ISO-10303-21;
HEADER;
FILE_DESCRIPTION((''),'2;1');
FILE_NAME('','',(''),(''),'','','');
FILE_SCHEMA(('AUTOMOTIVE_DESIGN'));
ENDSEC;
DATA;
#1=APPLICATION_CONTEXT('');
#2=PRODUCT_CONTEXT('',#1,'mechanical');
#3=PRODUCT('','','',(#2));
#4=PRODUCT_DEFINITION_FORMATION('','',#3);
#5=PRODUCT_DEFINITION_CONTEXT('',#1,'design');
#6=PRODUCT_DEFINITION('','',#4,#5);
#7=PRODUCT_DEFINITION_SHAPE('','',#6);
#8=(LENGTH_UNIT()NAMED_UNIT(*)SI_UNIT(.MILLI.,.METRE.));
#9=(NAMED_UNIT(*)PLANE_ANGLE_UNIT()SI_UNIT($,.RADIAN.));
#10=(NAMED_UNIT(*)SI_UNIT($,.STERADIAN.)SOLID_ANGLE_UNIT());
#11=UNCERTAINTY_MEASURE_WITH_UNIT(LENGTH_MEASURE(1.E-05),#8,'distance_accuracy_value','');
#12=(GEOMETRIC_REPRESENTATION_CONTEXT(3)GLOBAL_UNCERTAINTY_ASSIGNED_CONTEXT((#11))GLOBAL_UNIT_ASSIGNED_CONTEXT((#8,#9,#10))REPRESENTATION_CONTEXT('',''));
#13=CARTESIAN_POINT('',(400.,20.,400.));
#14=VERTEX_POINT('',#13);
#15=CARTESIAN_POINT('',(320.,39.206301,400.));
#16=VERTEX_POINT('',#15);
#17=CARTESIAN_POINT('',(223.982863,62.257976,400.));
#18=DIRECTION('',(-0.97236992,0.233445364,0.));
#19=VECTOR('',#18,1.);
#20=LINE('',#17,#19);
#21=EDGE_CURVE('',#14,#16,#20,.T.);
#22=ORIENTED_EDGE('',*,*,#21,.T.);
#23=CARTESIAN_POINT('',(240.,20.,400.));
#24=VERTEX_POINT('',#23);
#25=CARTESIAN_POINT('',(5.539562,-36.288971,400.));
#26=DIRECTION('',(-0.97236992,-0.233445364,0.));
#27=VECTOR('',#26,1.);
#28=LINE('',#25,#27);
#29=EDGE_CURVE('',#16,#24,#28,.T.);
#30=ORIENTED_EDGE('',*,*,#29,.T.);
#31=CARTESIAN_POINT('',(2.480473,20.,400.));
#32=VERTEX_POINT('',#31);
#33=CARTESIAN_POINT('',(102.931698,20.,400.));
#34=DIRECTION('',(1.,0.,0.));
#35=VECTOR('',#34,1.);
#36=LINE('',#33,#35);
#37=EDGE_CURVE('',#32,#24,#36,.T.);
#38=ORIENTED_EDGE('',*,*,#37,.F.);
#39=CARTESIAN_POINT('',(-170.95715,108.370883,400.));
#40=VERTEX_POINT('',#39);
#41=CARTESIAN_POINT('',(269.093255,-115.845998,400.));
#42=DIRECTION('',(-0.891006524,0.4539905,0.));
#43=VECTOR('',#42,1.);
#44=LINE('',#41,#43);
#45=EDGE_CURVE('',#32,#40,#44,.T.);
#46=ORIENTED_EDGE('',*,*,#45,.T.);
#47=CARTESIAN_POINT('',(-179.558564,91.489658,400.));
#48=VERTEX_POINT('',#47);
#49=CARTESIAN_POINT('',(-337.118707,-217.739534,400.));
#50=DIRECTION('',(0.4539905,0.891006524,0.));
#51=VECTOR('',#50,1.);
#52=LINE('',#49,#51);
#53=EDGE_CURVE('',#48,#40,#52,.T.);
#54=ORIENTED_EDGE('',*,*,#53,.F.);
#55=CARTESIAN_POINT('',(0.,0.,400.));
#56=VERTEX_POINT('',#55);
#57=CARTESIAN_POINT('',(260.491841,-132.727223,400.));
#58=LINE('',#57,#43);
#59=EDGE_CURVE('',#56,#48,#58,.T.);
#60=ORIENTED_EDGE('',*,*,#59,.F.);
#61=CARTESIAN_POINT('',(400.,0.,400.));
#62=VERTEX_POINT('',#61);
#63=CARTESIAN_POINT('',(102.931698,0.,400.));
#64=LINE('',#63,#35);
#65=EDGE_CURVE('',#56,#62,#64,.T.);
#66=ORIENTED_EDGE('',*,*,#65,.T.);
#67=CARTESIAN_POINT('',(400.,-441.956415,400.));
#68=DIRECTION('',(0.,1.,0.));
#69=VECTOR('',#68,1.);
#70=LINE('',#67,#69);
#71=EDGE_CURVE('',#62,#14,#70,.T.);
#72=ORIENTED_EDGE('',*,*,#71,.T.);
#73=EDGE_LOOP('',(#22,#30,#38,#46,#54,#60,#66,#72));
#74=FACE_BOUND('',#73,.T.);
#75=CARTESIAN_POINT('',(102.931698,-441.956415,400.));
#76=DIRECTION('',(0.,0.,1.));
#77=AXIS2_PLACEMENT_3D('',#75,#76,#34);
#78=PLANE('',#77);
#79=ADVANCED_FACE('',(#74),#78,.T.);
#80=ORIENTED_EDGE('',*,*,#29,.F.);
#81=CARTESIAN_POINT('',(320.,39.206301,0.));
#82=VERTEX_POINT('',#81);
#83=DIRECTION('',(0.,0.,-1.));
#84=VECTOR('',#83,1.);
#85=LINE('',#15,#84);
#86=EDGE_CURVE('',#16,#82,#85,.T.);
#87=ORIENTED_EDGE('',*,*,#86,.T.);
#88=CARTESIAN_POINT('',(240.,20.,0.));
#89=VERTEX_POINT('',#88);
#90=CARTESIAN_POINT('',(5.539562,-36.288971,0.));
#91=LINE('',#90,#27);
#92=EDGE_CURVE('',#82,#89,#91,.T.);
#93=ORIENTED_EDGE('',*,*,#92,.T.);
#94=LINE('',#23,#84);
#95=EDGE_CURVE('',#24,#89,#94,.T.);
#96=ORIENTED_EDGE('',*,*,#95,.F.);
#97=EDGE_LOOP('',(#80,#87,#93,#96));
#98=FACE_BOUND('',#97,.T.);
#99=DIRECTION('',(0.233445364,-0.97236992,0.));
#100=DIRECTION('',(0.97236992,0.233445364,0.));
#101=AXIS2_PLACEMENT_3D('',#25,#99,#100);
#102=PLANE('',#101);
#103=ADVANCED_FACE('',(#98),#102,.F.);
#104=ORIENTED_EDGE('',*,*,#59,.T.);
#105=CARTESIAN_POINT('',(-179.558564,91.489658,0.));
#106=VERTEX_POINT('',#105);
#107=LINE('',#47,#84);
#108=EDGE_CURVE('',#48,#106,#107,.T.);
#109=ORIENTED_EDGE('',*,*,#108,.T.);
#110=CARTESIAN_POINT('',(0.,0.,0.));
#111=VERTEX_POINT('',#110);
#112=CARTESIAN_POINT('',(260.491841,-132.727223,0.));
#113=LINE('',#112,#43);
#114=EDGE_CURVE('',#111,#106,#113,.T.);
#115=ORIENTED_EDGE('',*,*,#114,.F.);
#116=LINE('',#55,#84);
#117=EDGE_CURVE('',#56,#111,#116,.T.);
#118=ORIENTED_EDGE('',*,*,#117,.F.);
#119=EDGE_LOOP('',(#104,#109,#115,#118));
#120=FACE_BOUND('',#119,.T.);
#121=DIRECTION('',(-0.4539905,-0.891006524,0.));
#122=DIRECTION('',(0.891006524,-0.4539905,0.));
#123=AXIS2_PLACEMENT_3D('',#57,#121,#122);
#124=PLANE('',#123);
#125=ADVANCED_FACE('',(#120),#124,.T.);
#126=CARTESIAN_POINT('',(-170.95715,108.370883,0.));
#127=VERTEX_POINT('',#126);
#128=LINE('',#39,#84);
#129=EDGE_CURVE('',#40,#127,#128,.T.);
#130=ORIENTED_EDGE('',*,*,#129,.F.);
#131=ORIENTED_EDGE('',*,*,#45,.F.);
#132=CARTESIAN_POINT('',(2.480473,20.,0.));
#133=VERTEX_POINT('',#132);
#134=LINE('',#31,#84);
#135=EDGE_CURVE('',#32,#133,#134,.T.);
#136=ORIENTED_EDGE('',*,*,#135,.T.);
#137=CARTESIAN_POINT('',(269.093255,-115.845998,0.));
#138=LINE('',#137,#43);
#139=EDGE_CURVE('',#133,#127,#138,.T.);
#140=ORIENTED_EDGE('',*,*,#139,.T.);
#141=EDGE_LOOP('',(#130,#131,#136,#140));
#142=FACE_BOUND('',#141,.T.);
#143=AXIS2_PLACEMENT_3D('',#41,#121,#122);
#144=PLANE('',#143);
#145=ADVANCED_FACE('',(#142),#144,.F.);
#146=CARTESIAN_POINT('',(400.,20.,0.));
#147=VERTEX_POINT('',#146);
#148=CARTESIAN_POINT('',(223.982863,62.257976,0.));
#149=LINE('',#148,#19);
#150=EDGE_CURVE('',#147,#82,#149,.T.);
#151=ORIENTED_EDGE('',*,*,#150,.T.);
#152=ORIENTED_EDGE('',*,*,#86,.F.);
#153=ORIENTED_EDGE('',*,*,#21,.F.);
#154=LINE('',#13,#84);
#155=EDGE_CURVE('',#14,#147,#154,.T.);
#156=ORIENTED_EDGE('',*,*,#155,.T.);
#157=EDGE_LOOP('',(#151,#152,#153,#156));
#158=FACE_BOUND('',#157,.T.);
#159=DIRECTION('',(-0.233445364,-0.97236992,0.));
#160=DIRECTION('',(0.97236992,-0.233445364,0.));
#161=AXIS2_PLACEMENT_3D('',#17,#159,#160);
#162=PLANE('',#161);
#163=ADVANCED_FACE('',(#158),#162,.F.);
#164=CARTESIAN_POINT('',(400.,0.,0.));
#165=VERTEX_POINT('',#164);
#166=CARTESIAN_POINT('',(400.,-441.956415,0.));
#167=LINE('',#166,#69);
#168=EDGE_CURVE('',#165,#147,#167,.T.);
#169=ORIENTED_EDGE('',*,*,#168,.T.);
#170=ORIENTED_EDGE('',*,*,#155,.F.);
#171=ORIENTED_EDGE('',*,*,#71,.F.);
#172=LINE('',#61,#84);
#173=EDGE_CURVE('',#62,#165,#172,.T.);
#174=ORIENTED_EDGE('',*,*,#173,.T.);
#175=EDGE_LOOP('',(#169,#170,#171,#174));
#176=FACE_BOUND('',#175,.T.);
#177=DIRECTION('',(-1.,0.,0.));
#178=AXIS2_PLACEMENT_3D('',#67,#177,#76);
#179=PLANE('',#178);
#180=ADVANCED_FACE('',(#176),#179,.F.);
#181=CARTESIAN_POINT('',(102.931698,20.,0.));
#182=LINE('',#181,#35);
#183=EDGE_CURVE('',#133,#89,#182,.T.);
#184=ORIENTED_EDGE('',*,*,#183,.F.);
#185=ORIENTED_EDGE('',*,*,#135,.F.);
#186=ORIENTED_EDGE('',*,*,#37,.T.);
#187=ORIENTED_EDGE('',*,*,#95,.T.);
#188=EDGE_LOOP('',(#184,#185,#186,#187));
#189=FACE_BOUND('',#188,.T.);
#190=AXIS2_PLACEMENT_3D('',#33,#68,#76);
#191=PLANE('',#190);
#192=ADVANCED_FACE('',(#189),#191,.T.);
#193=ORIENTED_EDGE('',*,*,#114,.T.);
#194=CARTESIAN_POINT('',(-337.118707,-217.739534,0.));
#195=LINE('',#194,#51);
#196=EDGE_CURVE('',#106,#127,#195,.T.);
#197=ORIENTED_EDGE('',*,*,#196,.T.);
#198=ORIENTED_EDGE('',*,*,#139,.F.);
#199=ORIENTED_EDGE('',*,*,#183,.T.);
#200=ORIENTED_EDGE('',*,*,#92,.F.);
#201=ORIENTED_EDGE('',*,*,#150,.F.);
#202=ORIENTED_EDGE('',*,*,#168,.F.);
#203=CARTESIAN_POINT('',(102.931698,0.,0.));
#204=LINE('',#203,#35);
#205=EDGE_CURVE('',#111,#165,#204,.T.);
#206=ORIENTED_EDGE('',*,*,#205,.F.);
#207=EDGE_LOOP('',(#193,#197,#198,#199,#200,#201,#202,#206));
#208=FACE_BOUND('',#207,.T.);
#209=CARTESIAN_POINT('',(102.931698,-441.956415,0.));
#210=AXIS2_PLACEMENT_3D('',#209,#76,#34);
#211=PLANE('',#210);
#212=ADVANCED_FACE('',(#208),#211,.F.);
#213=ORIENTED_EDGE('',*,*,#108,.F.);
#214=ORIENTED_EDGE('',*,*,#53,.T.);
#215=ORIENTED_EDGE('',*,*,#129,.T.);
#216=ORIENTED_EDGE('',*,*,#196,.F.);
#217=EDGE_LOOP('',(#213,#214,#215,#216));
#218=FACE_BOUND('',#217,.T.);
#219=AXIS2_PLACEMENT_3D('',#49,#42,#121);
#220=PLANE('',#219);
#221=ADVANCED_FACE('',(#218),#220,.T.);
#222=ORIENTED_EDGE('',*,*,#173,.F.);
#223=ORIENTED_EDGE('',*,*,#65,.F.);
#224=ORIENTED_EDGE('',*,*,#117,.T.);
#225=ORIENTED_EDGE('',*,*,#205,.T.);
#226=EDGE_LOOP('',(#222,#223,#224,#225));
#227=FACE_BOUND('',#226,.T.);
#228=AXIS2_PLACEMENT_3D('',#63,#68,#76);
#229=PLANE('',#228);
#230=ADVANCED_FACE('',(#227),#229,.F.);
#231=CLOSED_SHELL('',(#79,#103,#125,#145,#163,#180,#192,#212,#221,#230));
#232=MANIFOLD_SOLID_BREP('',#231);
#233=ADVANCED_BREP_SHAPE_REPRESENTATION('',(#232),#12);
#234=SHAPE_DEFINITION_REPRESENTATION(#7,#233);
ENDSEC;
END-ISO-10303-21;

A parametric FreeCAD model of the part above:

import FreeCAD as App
import Part
import Sketcher
Q = App.Units.Quantity

doc = App.newDocument("Part")
body = doc.addObject("PartDesign::Body", "Body")

# Sketch on XY plane
sketch1 = doc.addObject("Sketcher::SketchObject", "Sketch")
body.addObject(sketch1)
sketch1.AttachmentSupport = (doc.XY_Plane, [""])
sketch1.MapMode = "FlatFace"
sketch1.addGeometry([
    Part.LineSegment(App.Vector(0, 0, 0), App.Vector(400, 0, 0)),  # 0
    Part.LineSegment(App.Vector(400, 0, 0), App.Vector(400, 20, 0)),  # 1
    Part.LineSegment(App.Vector(400, 20, 0), App.Vector(320, 39, 0)),  # 2
    Part.LineSegment(App.Vector(320, 39, 0), App.Vector(240, 20, 0)),  # 3
    Part.LineSegment(App.Vector(240, 20, 0), App.Vector(2, 20, 0)),  # 4
    Part.LineSegment(App.Vector(2, 20, 0), App.Vector(-171, 108, 0)),  # 5
    Part.LineSegment(App.Vector(-171, 108, 0), App.Vector(-180, 91, 0)),  # 6
    Part.LineSegment(App.Vector(-180, 91, 0), App.Vector(0, 0, 0)),  # 7
], False)
sketch1.addConstraint([
    Sketcher.Constraint("Coincident", 0, 2, 1, 1),
    Sketcher.Constraint("Coincident", 1, 2, 2, 1),
    Sketcher.Constraint("Coincident", 2, 2, 3, 1),
    Sketcher.Constraint("Coincident", 3, 2, 4, 1),
    Sketcher.Constraint("Coincident", 4, 2, 5, 1),
    Sketcher.Constraint("Coincident", 5, 2, 6, 1),
    Sketcher.Constraint("Coincident", 6, 2, 7, 1),
    Sketcher.Constraint("Coincident", 7, 2, 0, 1),
    Sketcher.Constraint("Horizontal", 0),
    Sketcher.Constraint("Vertical", 1),
    Sketcher.Constraint("Horizontal", 4),
    Sketcher.Constraint("Coincident", 7, 2, -1, 1),
    Sketcher.Constraint("Perpendicular", 5, 6),
    Sketcher.Constraint("Perpendicular", 6, 7),
    Sketcher.Constraint("Horizontal", 1, 2, 3, 2),
    Sketcher.Constraint("Equal", 2, 3),
    Sketcher.Constraint("DistanceX", 0, 1, 0, 2, 400.0),
    Sketcher.Constraint("DistanceY", 1, 1, 1, 2, 20.0),
    Sketcher.Constraint("Angle", 5, Q("153 deg")),
    Sketcher.Constraint("DistanceX", -1, 1, 2, 2, 320.0),
    Sketcher.Constraint("Angle", 2, Q("166.5 deg")),
    Sketcher.Constraint("Distance", 6, 18.946242),
    Sketcher.Constraint("DistanceX", 5, 2, -1, 1, 170.95715),
])
pad1 = doc.addObject("PartDesign::Pad", "Pad")
body.addObject(pad1)
pad1.Profile = sketch1
pad1.Length = 400

doc.recompute()
